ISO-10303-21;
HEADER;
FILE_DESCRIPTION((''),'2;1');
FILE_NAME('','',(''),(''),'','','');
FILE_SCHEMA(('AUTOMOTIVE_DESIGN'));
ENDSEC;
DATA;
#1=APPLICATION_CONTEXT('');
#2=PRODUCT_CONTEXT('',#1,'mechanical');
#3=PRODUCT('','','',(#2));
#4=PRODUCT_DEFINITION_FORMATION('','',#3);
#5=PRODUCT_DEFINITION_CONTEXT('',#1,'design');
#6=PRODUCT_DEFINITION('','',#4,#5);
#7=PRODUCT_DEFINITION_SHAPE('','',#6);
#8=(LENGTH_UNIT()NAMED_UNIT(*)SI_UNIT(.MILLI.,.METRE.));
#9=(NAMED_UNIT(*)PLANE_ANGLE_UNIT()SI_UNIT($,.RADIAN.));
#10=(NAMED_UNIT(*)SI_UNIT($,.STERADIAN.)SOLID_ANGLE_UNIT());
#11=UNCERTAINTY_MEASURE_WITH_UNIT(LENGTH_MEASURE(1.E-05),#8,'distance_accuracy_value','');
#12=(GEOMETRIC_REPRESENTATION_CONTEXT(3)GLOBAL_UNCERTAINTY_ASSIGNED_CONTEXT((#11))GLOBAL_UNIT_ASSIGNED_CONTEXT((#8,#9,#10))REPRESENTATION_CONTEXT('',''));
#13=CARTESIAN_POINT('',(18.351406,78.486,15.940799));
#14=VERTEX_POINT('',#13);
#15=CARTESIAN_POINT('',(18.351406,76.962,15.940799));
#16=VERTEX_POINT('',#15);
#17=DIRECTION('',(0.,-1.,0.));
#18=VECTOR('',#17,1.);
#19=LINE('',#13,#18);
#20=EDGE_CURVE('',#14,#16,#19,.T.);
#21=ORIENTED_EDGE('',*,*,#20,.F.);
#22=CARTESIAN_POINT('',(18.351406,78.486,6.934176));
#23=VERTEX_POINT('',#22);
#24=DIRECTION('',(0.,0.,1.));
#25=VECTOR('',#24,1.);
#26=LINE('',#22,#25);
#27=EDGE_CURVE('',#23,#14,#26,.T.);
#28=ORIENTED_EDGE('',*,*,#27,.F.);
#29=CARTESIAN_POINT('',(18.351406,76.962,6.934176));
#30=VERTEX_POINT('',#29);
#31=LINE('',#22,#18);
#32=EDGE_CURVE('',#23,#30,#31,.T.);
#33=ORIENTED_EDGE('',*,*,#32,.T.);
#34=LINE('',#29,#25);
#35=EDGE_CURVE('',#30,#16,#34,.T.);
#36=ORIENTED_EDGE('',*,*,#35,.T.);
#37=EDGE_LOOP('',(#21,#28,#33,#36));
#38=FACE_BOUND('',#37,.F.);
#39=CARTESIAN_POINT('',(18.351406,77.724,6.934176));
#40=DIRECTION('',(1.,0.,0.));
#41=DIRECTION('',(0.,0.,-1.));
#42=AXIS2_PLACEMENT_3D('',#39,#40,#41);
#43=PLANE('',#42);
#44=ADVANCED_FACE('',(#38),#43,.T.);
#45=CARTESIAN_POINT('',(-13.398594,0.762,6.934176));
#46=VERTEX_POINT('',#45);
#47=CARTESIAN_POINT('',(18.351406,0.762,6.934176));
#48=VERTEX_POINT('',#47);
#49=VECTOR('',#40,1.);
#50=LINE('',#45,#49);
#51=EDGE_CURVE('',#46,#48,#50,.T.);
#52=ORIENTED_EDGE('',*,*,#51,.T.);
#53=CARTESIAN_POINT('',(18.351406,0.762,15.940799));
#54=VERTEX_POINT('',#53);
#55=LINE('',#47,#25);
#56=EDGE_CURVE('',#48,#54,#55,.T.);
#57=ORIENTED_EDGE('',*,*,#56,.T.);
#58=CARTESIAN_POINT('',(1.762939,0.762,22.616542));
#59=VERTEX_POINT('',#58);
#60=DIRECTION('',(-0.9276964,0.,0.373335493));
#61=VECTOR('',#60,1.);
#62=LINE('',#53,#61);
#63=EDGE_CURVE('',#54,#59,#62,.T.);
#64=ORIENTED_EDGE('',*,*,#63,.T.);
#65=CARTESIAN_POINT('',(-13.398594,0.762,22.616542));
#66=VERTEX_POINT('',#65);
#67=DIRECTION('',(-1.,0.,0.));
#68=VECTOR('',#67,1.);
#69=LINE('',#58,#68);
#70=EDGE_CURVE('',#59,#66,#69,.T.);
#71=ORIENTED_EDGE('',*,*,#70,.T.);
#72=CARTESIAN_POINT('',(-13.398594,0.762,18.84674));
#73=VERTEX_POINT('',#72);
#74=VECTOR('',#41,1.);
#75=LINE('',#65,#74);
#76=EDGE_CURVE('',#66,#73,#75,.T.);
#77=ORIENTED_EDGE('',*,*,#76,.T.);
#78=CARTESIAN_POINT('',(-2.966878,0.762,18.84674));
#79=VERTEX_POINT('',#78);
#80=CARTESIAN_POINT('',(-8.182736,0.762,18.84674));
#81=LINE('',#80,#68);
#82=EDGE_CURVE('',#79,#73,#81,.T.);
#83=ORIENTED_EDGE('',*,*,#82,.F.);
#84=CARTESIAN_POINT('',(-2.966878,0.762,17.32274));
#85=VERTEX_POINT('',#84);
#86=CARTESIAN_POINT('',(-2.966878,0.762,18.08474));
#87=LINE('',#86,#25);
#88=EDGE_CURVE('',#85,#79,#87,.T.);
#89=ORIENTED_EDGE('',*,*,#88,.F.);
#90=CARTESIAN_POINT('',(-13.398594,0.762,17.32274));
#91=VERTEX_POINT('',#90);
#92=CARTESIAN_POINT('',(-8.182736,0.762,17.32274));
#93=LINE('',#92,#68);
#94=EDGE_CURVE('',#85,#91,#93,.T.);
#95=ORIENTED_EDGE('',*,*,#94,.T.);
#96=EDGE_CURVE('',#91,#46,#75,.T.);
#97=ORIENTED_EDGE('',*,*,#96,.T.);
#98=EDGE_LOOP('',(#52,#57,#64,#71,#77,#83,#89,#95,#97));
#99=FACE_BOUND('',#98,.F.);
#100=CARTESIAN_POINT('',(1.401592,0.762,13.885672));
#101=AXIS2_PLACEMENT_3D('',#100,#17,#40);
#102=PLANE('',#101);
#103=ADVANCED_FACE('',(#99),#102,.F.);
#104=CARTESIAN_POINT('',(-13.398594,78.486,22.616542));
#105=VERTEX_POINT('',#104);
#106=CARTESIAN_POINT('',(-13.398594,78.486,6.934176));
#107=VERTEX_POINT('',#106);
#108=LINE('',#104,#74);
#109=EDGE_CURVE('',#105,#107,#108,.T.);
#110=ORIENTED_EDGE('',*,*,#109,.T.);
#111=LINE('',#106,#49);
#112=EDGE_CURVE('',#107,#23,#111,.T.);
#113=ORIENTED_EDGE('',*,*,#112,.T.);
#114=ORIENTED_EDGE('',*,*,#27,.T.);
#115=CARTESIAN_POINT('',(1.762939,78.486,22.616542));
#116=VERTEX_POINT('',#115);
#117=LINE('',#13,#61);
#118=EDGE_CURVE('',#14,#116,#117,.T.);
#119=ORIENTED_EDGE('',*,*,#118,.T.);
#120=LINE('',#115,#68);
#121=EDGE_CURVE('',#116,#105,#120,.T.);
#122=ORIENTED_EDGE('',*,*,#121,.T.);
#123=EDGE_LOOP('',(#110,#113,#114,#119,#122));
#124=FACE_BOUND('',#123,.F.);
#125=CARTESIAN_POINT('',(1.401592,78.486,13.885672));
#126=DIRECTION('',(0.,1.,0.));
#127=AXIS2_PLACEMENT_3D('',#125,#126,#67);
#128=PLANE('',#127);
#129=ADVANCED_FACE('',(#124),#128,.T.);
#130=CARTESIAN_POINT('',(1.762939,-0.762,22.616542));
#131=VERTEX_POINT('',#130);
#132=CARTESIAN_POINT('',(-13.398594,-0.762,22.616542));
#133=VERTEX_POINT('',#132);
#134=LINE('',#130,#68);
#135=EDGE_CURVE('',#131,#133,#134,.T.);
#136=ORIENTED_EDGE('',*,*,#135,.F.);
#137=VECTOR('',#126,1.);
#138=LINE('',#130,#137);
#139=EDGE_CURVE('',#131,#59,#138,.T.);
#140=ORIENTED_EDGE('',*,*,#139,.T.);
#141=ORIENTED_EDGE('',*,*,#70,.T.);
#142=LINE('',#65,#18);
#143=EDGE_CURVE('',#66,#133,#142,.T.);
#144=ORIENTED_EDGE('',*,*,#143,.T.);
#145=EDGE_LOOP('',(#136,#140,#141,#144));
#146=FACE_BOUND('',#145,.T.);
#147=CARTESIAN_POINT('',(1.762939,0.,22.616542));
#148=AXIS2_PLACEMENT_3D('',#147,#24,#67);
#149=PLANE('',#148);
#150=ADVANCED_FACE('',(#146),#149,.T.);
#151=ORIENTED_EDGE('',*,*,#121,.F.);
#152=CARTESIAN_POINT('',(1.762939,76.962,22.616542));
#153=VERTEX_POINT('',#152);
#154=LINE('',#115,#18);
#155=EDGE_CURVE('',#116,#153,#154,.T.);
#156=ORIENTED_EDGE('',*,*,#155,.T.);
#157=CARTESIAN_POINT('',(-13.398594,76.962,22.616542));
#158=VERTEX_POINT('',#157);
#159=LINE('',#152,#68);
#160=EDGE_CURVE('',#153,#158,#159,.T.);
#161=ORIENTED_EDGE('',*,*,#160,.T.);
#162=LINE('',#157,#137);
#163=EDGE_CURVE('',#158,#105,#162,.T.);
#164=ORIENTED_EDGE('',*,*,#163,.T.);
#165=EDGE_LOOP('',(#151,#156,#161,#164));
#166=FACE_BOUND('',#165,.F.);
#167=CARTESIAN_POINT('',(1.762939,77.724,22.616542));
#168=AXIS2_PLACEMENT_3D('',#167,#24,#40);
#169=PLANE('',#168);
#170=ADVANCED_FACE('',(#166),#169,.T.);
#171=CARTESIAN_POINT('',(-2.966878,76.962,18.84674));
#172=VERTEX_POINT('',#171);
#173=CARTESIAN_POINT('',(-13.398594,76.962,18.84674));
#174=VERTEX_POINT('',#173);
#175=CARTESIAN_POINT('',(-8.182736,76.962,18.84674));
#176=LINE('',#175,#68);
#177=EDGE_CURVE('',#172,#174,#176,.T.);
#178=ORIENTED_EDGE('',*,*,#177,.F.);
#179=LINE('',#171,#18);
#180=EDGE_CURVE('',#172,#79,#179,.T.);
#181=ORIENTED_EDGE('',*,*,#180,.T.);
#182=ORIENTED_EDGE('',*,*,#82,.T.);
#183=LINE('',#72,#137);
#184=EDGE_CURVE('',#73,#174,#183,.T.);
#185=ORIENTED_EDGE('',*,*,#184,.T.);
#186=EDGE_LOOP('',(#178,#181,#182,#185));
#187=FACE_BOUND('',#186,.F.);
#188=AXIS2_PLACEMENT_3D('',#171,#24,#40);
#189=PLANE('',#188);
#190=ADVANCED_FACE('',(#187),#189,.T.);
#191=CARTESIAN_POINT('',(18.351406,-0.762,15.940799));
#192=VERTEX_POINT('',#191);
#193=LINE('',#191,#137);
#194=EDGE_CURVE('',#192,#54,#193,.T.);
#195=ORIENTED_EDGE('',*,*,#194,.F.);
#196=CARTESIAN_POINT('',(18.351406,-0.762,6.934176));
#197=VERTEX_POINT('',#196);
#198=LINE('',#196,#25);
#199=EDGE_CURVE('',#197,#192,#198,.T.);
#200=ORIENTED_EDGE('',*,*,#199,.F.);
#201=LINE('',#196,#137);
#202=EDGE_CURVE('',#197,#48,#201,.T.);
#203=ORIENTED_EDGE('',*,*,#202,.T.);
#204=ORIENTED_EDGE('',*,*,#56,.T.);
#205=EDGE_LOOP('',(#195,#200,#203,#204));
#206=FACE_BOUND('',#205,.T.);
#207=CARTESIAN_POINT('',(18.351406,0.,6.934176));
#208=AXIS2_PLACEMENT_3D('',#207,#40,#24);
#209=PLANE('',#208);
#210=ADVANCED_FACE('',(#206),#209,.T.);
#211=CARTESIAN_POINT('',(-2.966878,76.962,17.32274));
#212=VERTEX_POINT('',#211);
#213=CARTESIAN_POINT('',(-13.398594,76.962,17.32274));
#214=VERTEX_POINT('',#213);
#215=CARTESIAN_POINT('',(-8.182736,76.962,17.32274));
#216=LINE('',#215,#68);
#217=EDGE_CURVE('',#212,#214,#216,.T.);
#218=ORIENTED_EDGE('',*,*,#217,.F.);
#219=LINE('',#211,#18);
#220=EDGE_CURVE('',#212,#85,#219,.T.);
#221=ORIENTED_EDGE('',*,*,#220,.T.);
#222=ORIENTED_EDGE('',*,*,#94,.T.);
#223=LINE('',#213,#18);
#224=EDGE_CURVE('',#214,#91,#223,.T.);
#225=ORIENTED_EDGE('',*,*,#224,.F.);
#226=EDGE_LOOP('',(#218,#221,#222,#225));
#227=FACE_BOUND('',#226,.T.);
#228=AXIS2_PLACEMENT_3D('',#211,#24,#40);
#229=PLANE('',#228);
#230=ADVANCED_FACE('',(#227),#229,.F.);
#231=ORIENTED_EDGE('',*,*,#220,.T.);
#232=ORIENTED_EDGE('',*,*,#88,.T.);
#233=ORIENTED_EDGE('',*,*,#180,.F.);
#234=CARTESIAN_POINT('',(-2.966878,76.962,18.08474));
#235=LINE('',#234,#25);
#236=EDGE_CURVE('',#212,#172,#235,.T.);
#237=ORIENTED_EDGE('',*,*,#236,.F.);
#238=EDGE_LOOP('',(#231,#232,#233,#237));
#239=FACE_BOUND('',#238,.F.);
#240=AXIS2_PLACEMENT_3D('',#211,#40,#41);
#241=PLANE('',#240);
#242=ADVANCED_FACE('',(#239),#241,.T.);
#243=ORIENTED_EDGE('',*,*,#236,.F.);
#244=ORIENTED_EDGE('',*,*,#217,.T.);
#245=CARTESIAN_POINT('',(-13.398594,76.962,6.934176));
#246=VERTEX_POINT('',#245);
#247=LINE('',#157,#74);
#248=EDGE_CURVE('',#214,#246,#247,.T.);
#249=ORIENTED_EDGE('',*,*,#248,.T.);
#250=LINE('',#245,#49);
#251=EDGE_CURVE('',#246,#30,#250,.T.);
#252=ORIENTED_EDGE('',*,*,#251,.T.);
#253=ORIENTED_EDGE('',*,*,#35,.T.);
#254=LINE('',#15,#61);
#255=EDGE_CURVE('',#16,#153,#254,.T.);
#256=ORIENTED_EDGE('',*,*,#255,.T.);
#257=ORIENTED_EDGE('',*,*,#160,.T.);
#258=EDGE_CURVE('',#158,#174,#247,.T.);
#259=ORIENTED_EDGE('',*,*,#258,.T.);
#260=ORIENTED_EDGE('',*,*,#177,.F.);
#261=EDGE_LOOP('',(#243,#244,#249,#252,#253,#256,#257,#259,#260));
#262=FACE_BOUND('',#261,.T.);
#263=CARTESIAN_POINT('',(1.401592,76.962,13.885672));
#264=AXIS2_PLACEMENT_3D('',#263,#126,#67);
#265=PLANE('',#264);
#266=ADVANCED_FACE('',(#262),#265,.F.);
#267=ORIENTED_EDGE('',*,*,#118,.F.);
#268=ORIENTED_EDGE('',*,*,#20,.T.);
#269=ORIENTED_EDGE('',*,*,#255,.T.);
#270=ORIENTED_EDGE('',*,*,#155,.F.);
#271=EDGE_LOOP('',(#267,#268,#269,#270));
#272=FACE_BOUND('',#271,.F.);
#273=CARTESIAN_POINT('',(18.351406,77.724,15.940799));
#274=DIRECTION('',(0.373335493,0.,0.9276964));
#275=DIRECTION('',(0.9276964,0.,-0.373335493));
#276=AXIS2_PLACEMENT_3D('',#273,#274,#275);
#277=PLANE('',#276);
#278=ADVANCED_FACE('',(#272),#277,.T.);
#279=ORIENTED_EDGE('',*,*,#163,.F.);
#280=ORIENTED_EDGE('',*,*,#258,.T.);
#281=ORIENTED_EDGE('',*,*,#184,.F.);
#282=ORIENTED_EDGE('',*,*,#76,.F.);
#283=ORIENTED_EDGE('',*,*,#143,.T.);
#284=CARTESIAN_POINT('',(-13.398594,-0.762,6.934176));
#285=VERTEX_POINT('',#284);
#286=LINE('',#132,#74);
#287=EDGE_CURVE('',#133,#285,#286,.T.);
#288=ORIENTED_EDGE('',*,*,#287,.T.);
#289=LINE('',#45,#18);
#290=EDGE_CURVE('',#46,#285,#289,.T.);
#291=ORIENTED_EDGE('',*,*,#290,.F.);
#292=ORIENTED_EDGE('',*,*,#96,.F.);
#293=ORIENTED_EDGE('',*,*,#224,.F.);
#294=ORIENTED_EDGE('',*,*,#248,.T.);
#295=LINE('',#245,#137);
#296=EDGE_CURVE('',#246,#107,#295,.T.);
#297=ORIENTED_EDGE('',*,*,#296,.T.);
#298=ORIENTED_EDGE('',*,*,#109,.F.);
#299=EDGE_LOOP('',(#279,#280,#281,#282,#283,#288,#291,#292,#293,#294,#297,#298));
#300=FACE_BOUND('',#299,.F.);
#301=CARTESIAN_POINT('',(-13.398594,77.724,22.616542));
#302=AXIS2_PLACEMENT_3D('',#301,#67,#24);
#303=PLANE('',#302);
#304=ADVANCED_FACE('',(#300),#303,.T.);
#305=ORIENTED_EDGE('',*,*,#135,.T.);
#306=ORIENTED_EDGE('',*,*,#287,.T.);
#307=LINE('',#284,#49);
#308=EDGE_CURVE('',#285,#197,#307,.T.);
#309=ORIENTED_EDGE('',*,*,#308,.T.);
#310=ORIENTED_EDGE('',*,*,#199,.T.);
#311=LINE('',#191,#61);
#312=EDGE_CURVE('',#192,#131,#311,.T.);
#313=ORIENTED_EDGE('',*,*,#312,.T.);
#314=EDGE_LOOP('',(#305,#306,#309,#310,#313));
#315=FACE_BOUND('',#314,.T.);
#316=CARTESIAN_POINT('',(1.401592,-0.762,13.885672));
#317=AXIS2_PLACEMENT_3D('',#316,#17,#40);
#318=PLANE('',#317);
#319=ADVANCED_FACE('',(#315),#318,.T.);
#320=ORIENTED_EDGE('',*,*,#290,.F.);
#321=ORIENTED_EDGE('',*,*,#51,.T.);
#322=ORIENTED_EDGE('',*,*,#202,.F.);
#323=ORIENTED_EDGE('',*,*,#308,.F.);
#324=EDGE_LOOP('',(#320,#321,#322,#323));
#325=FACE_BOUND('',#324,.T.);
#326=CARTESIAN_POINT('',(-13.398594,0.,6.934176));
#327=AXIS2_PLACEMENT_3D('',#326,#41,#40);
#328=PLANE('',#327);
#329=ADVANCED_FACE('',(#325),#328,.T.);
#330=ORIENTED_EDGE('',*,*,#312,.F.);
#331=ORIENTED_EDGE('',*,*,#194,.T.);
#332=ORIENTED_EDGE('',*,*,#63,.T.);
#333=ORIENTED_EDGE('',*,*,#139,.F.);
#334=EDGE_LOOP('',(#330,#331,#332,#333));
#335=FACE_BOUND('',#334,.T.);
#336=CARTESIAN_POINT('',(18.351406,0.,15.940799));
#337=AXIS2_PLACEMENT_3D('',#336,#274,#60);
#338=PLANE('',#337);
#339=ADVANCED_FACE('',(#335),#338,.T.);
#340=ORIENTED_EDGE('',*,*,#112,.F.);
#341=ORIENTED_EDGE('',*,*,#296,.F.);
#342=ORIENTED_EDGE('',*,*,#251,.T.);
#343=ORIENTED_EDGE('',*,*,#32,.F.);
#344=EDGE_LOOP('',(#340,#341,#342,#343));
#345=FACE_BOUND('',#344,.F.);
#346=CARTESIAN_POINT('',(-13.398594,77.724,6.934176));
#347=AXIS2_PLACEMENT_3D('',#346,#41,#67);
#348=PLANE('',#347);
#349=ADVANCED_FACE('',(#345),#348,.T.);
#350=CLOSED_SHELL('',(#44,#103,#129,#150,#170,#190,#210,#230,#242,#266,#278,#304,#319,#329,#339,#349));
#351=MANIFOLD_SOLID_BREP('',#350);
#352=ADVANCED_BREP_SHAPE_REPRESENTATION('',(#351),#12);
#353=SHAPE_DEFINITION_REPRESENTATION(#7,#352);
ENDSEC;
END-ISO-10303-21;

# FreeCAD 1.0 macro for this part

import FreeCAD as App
import Part
import Sketcher

V = App.Vector
Q = App.Units.Quantity


def add_polygon(sketch, points):
    """Adds a closed chain of lines whose ends are joined by coincident constraints."""
    first, n = sketch.GeometryCount, len(points)
    for a, b in zip(points, points[1:] + points[:1]):
        sketch.addGeometry(Part.LineSegment(App.Vector(*a, 0), App.Vector(*b, 0)), False)
    for i in range(n):
        sketch.addConstraint(Sketcher.Constraint("Coincident", first + i, 2, first + (i + 1) % n, 1))

doc = App.newDocument("Part")
body = doc.addObject("PartDesign::Body", "Body")

sketch1 = body.newObject("Sketcher::SketchObject", "Sketch")
sketch1.AttachmentSupport = (doc.getObject("XZ_Plane"), [""])
sketch1.MapMode = "FlatFace"
add_polygon(sketch1, [(2, 23), (-13, 23), (-13, 7), (18, 7), (18, 16)])
sketch1.addConstraint([
    Sketcher.Constraint("Horizontal", 0),
    Sketcher.Constraint("Vertical", 1),
    Sketcher.Constraint("Horizontal", 2),
    Sketcher.Constraint("Vertical", 3),
    Sketcher.Constraint("DistanceX", 2, 1, 2, 2, Q("1.25 in")),
    Sketcher.Constraint("DistanceY", -1, 1, 3, 2, Q("15.940799 mm")),
    Sketcher.Constraint("DistanceX", 0, 2, 0, 1, Q("15.161534 mm")),
    Sketcher.Constraint("DistanceY", 1, 2, 1, 1, Q("15.682367 mm")),
    Sketcher.Constraint("DistanceY", 3, 1, 3, 2, Q("9.006623 mm")),
    Sketcher.Constraint("DistanceX", -1, 1, 4, 2, Q("1.762939 mm")),
])
pad1 = body.newObject("PartDesign::Pad", "Pad")
pad1.Profile = sketch1
pad1.Length = Q("0.06 in")
pad1.Midplane = True

sketch2 = body.newObject("Sketcher::SketchObject", "Sketch001")
sketch2.AttachmentSupport = (doc.getObject("XZ_Plane"), [""])
sketch2.MapMode = "FlatFace"
sketch2.AttachmentOffset = App.Placement(V(0, 0, -0.03 * 25.4), App.Rotation())
add_polygon(sketch2, [(-3, 18.8), (-3, 17.3), (-13.4, 17.3), (-13.4, 18.8)])
sketch2.addConstraint([
    Sketcher.Constraint("Vertical", 0),
    Sketcher.Constraint("Horizontal", 1),
    Sketcher.Constraint("Vertical", 2),
    Sketcher.Constraint("Horizontal", 3),
    Sketcher.Constraint("DistanceY", 0, 2, 0, 1, Q("0.06 in")),
    Sketcher.Constraint("DistanceX", 1, 2, 1, 1, Q("10.431717 mm")),
    Sketcher.Constraint("DistanceY", -1, 1, 0, 2, Q("17.32274 mm")),
    Sketcher.Constraint("DistanceX", 0, 2, -1, 1, Q("2.966878 mm")),
])
pad2 = body.newObject("PartDesign::Pad", "Pad001")
pad2.Profile = sketch2
pad2.Length = Q("1.5 in")
pad2.Reversed = True
body2 = doc.addObject("PartDesign::Body", "Body001")
doc.recompute()

body2.BaseFeature = body
doc.recompute()

mirroring = doc.addObject("Part::Mirroring", "Mirroring")
mirroring.Source = body
mirroring.Base = V(-8.182736, 38.862, 18.08474)
mirroring.Normal = V(0, 1, 0)
body3 = doc.addObject("PartDesign::Body", "Body002")
body3.BaseFeature = mirroring
boolean = body2.newObject("PartDesign::Boolean", "Boolean")
boolean.Type = "Fuse"
boolean.addObjects([body3])
doc.recompute()
mirroring.Visibility = False

doc.recompute()
